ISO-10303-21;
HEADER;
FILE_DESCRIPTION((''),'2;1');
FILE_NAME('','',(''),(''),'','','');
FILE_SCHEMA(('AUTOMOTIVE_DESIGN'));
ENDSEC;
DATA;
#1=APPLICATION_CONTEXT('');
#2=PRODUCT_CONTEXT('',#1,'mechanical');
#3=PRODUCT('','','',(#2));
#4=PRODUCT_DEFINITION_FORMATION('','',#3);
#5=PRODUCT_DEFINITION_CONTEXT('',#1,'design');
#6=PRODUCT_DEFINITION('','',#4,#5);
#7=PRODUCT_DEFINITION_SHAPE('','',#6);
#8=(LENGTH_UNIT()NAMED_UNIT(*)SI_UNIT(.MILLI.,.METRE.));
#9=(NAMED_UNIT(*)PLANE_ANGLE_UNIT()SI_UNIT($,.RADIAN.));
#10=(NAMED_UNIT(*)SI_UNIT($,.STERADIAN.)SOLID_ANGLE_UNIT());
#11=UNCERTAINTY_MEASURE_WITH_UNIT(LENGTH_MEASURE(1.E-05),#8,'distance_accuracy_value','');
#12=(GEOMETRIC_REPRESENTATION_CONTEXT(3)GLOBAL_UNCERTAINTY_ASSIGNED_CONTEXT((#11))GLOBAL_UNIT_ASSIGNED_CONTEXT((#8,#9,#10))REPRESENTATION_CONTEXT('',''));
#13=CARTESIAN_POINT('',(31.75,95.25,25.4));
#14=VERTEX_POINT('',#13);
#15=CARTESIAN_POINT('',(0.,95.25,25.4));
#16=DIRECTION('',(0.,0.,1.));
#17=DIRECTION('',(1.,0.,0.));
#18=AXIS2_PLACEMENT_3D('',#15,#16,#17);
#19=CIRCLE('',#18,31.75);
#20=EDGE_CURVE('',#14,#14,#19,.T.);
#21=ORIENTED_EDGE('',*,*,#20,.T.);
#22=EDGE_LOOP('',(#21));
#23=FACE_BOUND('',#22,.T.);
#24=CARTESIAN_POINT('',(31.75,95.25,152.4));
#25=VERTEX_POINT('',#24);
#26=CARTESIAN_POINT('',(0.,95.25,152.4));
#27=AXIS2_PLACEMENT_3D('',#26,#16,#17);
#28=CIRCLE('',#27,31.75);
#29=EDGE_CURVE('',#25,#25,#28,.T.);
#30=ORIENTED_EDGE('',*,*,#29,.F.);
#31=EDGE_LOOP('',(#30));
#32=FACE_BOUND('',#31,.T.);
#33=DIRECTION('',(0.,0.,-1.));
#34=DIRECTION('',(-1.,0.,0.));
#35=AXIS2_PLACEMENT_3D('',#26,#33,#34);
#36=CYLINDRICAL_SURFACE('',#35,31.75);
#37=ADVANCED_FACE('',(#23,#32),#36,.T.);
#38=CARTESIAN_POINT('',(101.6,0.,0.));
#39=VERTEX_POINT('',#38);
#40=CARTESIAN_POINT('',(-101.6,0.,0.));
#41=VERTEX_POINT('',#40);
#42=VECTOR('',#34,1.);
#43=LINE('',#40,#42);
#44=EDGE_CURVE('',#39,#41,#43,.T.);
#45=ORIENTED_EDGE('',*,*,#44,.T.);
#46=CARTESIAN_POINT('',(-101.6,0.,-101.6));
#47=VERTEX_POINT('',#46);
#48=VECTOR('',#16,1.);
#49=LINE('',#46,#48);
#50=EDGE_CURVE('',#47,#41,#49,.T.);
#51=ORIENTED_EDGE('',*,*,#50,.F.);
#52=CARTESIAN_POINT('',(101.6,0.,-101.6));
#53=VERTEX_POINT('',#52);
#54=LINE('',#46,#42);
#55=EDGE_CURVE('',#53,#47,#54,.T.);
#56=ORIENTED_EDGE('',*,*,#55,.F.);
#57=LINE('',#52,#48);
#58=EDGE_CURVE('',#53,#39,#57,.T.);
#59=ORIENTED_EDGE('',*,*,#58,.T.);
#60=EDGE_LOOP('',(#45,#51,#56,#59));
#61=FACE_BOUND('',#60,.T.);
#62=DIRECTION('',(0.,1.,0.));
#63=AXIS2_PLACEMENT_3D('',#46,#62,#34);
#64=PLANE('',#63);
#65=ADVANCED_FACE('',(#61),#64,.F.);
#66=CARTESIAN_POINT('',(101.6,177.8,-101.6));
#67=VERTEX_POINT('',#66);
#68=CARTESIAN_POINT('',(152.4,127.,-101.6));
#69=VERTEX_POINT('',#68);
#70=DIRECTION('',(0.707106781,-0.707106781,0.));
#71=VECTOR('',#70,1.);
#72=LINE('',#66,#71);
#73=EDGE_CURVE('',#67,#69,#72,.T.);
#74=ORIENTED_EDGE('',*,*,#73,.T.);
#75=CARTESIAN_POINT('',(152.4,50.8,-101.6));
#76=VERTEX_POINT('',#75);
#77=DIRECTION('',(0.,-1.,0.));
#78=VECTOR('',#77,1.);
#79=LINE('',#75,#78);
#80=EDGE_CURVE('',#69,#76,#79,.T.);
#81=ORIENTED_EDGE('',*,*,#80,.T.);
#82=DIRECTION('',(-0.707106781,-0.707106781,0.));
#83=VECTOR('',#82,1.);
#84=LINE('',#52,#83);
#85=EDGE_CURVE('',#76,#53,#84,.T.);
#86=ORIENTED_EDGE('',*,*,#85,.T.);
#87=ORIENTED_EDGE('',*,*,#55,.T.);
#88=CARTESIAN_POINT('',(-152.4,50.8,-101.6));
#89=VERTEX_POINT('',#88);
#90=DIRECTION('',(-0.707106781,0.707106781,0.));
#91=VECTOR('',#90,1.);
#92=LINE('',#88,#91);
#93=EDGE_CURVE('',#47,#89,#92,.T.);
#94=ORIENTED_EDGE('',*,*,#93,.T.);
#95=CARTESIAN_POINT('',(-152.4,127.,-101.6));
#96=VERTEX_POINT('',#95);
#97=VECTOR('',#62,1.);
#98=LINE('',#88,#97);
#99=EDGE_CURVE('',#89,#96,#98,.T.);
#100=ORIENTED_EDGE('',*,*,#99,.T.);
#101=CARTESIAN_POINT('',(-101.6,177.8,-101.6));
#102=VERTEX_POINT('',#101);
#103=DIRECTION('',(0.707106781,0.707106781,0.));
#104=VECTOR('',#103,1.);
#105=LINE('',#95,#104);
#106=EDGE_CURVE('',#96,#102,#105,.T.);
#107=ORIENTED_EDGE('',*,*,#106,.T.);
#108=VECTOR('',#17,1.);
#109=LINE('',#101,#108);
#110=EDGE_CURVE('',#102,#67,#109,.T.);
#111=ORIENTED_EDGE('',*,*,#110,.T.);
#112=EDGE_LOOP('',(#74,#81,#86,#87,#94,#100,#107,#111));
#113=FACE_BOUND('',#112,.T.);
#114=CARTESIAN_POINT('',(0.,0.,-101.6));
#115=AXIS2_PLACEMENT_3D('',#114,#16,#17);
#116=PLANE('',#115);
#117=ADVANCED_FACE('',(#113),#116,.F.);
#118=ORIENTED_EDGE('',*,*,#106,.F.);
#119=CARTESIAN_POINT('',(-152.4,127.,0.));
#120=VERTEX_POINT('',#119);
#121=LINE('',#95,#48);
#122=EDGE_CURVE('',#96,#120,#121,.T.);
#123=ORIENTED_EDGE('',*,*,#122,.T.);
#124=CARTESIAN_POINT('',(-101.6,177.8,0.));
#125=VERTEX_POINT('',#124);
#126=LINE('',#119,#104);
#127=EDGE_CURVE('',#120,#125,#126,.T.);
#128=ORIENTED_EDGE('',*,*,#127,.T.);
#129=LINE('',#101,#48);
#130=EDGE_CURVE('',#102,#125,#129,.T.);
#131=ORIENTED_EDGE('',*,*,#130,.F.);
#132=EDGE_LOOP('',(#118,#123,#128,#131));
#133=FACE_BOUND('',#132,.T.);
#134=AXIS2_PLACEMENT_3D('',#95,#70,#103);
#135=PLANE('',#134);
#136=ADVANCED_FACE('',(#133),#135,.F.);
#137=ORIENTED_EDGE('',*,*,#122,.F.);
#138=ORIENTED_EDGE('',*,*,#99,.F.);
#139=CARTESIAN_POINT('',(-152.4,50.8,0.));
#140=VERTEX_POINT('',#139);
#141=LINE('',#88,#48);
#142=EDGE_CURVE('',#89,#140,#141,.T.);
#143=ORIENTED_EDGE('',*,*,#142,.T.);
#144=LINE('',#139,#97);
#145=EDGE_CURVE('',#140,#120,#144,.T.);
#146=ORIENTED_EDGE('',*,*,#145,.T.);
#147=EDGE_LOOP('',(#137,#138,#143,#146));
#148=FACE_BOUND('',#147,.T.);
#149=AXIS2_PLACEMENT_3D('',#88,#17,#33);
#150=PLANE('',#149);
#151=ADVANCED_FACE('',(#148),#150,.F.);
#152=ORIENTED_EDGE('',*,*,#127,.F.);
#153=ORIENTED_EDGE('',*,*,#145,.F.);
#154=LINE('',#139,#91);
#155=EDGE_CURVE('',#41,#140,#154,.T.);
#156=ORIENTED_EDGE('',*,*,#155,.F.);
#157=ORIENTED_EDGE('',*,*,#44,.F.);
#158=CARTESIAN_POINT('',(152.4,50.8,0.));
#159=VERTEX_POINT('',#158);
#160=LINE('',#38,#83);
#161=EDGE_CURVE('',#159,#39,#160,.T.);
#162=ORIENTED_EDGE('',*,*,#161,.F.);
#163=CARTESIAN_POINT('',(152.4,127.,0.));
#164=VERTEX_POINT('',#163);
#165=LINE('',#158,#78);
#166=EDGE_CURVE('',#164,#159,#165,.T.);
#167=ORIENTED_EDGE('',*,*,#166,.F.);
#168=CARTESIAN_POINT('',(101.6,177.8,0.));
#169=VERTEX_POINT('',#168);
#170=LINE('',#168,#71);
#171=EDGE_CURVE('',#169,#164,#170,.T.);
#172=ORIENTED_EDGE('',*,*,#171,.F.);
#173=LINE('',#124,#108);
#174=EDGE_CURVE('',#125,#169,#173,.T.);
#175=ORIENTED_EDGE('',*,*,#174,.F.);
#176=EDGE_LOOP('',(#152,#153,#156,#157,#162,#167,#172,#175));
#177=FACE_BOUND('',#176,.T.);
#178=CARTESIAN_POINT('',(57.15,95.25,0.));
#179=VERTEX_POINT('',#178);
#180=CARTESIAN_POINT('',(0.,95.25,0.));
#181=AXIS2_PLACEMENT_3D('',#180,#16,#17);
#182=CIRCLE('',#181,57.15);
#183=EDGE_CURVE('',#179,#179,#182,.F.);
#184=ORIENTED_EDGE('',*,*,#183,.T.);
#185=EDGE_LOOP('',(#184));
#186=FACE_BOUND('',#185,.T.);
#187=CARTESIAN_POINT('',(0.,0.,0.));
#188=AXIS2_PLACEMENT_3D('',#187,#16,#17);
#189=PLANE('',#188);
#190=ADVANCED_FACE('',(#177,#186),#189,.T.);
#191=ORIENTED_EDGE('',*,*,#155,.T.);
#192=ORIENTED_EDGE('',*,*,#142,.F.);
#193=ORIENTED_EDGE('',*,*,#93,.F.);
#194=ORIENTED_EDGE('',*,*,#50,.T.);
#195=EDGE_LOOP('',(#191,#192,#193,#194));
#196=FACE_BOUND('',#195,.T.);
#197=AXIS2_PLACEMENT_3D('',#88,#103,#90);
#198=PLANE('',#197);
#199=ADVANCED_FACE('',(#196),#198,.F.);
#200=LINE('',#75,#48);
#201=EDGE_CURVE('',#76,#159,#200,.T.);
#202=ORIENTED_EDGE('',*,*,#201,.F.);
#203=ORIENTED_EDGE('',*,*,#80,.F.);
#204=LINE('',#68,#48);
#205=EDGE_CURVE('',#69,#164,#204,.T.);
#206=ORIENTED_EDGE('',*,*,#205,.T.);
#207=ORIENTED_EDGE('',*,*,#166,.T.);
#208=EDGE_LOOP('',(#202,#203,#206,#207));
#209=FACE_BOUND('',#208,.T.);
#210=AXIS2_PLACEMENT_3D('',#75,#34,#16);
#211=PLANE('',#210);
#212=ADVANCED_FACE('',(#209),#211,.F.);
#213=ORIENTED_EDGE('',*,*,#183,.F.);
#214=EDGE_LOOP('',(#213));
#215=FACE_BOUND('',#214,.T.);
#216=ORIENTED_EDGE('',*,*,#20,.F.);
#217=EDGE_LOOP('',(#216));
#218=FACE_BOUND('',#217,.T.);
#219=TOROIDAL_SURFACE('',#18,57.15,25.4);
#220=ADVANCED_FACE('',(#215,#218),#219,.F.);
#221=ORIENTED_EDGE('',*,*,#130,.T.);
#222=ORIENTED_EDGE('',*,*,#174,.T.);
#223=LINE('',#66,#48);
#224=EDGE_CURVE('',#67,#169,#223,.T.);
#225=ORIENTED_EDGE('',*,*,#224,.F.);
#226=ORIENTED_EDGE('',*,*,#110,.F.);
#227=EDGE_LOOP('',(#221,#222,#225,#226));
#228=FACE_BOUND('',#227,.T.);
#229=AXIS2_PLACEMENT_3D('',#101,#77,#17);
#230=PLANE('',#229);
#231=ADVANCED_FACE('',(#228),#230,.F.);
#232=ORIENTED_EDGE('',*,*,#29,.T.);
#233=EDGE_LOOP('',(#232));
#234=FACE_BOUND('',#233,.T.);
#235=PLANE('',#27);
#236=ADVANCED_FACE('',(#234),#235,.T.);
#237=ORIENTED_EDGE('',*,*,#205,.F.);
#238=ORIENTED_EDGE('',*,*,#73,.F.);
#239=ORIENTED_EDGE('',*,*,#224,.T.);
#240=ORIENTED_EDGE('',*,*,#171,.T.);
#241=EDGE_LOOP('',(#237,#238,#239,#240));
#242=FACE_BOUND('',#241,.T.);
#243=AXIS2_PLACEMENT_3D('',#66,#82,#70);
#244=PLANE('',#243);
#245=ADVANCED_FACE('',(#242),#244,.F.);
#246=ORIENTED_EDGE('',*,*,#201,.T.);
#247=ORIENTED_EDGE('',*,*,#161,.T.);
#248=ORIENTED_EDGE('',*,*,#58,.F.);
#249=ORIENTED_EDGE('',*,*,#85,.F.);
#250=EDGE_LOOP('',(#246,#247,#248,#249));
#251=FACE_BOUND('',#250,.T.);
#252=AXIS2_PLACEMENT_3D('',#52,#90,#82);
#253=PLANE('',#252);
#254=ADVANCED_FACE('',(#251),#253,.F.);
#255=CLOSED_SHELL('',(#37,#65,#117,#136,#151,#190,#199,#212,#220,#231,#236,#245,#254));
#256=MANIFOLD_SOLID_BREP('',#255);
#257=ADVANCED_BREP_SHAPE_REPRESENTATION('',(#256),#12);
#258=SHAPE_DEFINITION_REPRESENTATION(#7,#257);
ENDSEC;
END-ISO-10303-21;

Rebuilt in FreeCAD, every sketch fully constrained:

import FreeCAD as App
import Part
import Sketcher

V = App.Vector
Q = App.Units.Quantity


def edges_at(feature, points):
    """Names of the edges that pass closest to the given points."""
    edges = feature.Shape.Edges
    near = lambda p: min(range(len(edges)), key=lambda i: edges[i].distToShape(Part.Vertex(*p))[0])
    return sorted({f"Edge{near(p) + 1}" for p in points})


def add_polygon(sketch, points):
    """Adds a closed chain of lines whose ends are joined by coincident constraints."""
    first, n = sketch.GeometryCount, len(points)
    for a, b in zip(points, points[1:] + points[:1]):
        sketch.addGeometry(Part.LineSegment(App.Vector(*a, 0), App.Vector(*b, 0)), False)
    for i in range(n):
        sketch.addConstraint(Sketcher.Constraint("Coincident", first + i, 2, first + (i + 1) % n, 1))

doc = App.newDocument("Part")
body = doc.addObject("PartDesign::Body", "Body")

sketch1 = body.newObject("Sketcher::SketchObject", "Sketch")
sketch1.AttachmentSupport = (doc.getObject("XY_Plane"), [""])
sketch1.MapMode = "FlatFace"
sketch1.addGeometry(Part.Circle(V(0, 95, 0), V(0, 0, 1), 32), False)
sketch1.addConstraint([
    Sketcher.Constraint("PointOnObject", 0, 3, -2),
    Sketcher.Constraint("Diameter", 0, Q("2.5 in")),
    Sketcher.Constraint("DistanceY", -1, 1, 0, 3, Q("3.75 in")),
])
pad1 = body.newObject("PartDesign::Pad", "Pad")
pad1.Profile = sketch1
pad1.Length = Q("6 in")

sketch2 = body.newObject("Sketcher::SketchObject", "Sketch001")
sketch2.AttachmentSupport = (doc.getObject("XY_Plane"), [""])
sketch2.MapMode = "FlatFace"
add_polygon(sketch2, [(102, 178), (152, 127), (152, 51), (102, 0), (-102, 0), (-152, 51), (-152, 127), (-102, 178)])
sketch2.addConstraint([
    Sketcher.Constraint("Vertical", 1),
    Sketcher.Constraint("Horizontal", 3),
    Sketcher.Constraint("Vertical", 5),
    Sketcher.Constraint("Horizontal", 7),
    Sketcher.Constraint("Symmetric", 2, 2, 3, 2, -1, 1),
    Sketcher.Constraint("Symmetric", 1, 2, 4, 2, -2),
    Sketcher.Constraint("Perpendicular", 0, 2),
    Sketcher.Constraint("Perpendicular", 2, 4),
    Sketcher.Constraint("Perpendicular", 4, 6),
    Sketcher.Constraint("Horizontal", 0, 2, 5, 2),
    Sketcher.Constraint("Vertical", 3, 2, 6, 2),
    Sketcher.Constraint("DistanceX", 3, 2, 3, 1, Q("8 in")),
    Sketcher.Constraint("DistanceY", 1, 2, 1, 1, Q("3 in")),
    Sketcher.Constraint("DistanceX", -1, 1, 0, 2, Q("6 in")),
])
pad2 = body.newObject("PartDesign::Pad", "Pad001")
pad2.Profile = sketch2
pad2.Length = Q("4 in")
pad2.Reversed = True
doc.recompute()

fillet = body.newObject("PartDesign::Fillet", "Fillet")
fillet.Base = (pad2, edges_at(pad2, [(-31.75, 95.25, 0)]))
fillet.Radius = Q("1 in")

doc.recompute()
